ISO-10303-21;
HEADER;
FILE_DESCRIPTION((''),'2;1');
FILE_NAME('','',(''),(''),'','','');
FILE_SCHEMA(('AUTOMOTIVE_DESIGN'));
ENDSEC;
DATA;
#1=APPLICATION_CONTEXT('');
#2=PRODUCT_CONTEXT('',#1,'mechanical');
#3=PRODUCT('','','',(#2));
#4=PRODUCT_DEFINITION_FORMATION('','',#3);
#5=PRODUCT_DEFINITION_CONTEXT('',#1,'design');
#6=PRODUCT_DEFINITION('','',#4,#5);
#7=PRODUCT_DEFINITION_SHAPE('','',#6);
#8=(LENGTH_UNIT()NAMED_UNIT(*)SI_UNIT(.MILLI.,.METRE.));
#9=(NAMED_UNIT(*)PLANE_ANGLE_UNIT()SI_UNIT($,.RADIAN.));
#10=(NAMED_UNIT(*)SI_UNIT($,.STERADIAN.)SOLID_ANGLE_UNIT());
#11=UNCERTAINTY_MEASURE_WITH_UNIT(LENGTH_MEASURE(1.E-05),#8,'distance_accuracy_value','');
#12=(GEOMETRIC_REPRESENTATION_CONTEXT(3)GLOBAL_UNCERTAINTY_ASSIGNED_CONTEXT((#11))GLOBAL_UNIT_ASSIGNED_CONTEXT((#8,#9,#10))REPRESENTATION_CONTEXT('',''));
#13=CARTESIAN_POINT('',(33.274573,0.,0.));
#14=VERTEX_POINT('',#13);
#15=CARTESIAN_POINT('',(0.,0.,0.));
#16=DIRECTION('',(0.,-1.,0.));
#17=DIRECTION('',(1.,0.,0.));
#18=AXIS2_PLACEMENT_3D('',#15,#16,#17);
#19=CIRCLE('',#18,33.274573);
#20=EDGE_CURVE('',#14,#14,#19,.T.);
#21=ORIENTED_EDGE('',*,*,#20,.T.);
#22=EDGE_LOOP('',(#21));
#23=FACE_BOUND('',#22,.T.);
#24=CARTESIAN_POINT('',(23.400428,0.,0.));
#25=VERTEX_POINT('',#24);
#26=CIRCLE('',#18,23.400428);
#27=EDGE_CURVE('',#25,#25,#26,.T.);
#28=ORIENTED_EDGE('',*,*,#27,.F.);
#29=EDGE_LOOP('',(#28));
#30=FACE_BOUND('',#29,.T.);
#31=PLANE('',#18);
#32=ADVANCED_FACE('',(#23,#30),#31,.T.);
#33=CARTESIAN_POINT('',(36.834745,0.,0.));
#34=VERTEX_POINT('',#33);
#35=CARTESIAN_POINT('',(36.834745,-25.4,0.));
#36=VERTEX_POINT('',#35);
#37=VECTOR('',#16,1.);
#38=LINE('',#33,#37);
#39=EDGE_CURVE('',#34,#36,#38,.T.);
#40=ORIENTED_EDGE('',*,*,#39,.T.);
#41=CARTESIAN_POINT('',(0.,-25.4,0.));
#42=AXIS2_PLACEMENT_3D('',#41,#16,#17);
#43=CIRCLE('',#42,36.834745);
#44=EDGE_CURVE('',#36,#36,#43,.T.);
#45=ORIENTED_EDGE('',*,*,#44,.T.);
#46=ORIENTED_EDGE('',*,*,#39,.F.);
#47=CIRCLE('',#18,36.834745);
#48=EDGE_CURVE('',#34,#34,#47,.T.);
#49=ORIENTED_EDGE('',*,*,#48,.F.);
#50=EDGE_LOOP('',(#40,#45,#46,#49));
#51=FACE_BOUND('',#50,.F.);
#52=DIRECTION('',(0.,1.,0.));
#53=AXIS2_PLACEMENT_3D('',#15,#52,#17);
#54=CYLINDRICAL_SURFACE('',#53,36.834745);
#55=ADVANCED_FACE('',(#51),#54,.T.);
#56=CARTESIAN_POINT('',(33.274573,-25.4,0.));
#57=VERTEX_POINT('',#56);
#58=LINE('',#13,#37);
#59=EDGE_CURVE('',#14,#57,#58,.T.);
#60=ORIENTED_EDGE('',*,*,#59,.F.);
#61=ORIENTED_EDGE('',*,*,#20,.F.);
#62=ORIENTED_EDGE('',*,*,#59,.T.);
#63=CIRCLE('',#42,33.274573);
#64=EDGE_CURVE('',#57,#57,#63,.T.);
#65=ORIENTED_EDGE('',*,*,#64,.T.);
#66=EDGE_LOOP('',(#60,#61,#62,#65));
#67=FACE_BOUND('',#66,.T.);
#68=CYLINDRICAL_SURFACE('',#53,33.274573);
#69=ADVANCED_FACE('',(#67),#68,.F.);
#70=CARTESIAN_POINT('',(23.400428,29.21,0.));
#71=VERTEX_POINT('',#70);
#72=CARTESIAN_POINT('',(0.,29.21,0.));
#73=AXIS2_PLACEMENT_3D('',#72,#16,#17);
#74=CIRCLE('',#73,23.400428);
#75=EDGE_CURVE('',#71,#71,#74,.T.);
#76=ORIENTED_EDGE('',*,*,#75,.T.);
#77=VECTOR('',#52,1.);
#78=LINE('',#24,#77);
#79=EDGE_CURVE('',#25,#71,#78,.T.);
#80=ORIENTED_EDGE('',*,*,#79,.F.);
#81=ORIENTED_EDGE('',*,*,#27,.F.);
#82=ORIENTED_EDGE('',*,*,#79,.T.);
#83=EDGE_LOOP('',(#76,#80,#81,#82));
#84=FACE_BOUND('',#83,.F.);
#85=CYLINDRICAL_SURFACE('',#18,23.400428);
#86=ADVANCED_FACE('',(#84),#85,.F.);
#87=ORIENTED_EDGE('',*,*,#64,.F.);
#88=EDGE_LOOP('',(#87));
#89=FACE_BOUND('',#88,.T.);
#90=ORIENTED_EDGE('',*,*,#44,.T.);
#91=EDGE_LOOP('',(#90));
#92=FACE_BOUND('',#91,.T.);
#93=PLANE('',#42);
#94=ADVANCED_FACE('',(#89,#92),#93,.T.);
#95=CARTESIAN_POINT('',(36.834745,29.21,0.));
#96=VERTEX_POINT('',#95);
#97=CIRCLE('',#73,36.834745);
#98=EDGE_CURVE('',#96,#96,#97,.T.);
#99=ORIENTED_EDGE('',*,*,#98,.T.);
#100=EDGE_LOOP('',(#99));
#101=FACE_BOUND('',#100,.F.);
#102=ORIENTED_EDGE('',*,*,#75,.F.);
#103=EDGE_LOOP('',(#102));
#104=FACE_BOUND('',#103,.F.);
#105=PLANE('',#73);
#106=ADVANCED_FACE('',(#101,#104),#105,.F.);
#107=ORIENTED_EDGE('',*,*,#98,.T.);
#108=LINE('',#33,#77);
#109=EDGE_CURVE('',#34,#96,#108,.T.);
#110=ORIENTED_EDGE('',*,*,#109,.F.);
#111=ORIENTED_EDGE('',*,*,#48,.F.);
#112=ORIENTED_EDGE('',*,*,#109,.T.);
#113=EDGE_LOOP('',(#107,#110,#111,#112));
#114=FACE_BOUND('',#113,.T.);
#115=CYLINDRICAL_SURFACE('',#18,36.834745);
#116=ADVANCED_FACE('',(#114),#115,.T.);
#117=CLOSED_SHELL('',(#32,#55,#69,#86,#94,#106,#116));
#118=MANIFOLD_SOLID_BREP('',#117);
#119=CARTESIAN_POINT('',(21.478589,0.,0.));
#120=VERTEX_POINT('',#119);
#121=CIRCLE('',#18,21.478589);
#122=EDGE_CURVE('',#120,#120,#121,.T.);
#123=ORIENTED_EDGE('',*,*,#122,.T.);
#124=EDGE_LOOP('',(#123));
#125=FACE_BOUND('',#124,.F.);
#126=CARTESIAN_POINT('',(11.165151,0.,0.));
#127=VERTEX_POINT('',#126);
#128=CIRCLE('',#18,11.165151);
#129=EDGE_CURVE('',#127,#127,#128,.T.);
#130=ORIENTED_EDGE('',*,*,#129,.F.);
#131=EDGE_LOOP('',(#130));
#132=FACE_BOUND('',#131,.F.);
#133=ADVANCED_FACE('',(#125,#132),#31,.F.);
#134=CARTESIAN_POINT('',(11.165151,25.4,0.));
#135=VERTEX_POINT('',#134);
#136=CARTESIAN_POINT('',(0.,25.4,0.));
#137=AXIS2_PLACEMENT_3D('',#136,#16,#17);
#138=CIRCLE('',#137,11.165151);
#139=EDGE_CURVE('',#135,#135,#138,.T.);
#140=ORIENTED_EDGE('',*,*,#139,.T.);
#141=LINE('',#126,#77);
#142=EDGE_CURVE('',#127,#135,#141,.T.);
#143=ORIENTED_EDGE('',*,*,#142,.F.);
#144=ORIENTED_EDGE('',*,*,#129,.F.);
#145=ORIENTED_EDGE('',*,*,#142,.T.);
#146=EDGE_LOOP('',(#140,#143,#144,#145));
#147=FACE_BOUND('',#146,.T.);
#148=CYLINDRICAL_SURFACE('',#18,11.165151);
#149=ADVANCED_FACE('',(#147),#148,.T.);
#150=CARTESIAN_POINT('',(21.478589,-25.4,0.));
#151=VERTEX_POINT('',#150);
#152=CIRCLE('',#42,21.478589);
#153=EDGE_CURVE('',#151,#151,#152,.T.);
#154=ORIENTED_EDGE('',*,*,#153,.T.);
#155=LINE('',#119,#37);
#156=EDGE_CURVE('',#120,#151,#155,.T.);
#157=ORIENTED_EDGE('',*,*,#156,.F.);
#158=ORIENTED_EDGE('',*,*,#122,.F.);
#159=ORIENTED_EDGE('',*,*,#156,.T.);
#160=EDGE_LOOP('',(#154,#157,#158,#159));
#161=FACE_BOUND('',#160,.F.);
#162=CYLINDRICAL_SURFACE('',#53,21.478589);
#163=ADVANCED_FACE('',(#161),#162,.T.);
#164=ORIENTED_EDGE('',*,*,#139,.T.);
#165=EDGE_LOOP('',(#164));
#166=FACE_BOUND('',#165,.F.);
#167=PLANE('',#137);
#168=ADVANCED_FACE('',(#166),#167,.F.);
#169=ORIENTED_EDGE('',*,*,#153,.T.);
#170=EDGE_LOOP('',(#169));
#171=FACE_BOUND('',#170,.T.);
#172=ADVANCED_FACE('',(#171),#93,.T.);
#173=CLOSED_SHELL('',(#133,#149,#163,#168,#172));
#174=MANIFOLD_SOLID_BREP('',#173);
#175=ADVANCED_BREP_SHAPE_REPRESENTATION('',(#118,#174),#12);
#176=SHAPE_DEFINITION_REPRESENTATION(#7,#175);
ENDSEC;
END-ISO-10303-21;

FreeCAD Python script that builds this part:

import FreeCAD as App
import Part
import Sketcher
from FreeCAD import Vector
Q = App.Units.Quantity

doc = App.newDocument("Part")
body = doc.addObject("PartDesign::Body", "Body")

# Sketch on XZ plane
sketch1 = body.newObject("Sketcher::SketchObject", "Sketch")
sketch1.AttachmentSupport = (doc.getObject("XZ_Plane"), [""])
sketch1.MapMode = "FlatFace"
sketch1.addGeometry(Part.Circle(Vector(0, 0, 0), Vector(0, 0, 1), 11), False)
sketch1.addConstraint([
    Sketcher.Constraint("Coincident", 0, 3, -1, 1),
    Sketcher.Constraint("Diameter", 0, Q("22.330301 mm")),
])
pad1 = body.newObject("PartDesign::Pad", "Pad")
pad1.Profile = sketch1
pad1.Length = Q("1 in")
pad1.Reversed = True

# Sketch on XZ plane
sketch2 = body.newObject("Sketcher::SketchObject", "Sketch001")
sketch2.AttachmentSupport = (doc.getObject("XZ_Plane"), [""])
sketch2.MapMode = "FlatFace"
sketch2.addGeometry(Part.Circle(Vector(0, 0, 0), Vector(0, 0, 1), 21), False)
sketch2.addConstraint([
    Sketcher.Constraint("Coincident", 0, 3, -1, 1),
    Sketcher.Constraint("Diameter", 0, Q("42.957178 mm")),
])
pad2 = body.newObject("PartDesign::Pad", "Pad001")
pad2.Profile = sketch2
pad2.Length = Q("1 in")
body2 = doc.addObject("PartDesign::Body", "Body001")

# Sketch on XZ plane
sketch3 = body2.newObject("Sketcher::SketchObject", "Sketch002")
sketch3.AttachmentSupport = (doc.getObject("XZ_Plane001"), [""])
sketch3.MapMode = "FlatFace"
sketch3.addGeometry([
    Part.Circle(Vector(0, 0, 0), Vector(0, 0, 1), 37),
    Part.Circle(Vector(0, 0, 0), Vector(0, 0, 1), 23),
], False)
sketch3.addConstraint([
    Sketcher.Constraint("Coincident", 0, 3, -1, 1),
    Sketcher.Constraint("Coincident", 1, 3, -1, 1),
    Sketcher.Constraint("Diameter", 0, Q("73.669489 mm")),
    Sketcher.Constraint("Diameter", 1, Q("46.800857 mm")),
])
pad3 = body2.newObject("PartDesign::Pad", "Pad002")
pad3.Profile = sketch3
pad3.Length = Q("1.15 in")
pad3.Reversed = True

# Sketch on XZ plane
sketch4 = body2.newObject("Sketcher::SketchObject", "Sketch003")
sketch4.AttachmentSupport = (doc.getObject("XZ_Plane001"), [""])
sketch4.MapMode = "FlatFace"
sketch4.addGeometry([
    Part.Circle(Vector(0, 0, 0), Vector(0, 0, 1), 37),
    Part.Circle(Vector(0, 0, 0), Vector(0, 0, 1), 33),
], False)
sketch4.addConstraint([
    Sketcher.Constraint("Coincident", 0, 3, -1, 1),
    Sketcher.Constraint("Coincident", 1, 3, -1, 1),
    Sketcher.Constraint("Diameter", 0, Q("73.669489 mm")),
    Sketcher.Constraint("Diameter", 1, Q("66.549146 mm")),
])
pad4 = body2.newObject("PartDesign::Pad", "Pad003")
pad4.Profile = sketch4
pad4.Length = Q("1 in")

doc.recompute()
